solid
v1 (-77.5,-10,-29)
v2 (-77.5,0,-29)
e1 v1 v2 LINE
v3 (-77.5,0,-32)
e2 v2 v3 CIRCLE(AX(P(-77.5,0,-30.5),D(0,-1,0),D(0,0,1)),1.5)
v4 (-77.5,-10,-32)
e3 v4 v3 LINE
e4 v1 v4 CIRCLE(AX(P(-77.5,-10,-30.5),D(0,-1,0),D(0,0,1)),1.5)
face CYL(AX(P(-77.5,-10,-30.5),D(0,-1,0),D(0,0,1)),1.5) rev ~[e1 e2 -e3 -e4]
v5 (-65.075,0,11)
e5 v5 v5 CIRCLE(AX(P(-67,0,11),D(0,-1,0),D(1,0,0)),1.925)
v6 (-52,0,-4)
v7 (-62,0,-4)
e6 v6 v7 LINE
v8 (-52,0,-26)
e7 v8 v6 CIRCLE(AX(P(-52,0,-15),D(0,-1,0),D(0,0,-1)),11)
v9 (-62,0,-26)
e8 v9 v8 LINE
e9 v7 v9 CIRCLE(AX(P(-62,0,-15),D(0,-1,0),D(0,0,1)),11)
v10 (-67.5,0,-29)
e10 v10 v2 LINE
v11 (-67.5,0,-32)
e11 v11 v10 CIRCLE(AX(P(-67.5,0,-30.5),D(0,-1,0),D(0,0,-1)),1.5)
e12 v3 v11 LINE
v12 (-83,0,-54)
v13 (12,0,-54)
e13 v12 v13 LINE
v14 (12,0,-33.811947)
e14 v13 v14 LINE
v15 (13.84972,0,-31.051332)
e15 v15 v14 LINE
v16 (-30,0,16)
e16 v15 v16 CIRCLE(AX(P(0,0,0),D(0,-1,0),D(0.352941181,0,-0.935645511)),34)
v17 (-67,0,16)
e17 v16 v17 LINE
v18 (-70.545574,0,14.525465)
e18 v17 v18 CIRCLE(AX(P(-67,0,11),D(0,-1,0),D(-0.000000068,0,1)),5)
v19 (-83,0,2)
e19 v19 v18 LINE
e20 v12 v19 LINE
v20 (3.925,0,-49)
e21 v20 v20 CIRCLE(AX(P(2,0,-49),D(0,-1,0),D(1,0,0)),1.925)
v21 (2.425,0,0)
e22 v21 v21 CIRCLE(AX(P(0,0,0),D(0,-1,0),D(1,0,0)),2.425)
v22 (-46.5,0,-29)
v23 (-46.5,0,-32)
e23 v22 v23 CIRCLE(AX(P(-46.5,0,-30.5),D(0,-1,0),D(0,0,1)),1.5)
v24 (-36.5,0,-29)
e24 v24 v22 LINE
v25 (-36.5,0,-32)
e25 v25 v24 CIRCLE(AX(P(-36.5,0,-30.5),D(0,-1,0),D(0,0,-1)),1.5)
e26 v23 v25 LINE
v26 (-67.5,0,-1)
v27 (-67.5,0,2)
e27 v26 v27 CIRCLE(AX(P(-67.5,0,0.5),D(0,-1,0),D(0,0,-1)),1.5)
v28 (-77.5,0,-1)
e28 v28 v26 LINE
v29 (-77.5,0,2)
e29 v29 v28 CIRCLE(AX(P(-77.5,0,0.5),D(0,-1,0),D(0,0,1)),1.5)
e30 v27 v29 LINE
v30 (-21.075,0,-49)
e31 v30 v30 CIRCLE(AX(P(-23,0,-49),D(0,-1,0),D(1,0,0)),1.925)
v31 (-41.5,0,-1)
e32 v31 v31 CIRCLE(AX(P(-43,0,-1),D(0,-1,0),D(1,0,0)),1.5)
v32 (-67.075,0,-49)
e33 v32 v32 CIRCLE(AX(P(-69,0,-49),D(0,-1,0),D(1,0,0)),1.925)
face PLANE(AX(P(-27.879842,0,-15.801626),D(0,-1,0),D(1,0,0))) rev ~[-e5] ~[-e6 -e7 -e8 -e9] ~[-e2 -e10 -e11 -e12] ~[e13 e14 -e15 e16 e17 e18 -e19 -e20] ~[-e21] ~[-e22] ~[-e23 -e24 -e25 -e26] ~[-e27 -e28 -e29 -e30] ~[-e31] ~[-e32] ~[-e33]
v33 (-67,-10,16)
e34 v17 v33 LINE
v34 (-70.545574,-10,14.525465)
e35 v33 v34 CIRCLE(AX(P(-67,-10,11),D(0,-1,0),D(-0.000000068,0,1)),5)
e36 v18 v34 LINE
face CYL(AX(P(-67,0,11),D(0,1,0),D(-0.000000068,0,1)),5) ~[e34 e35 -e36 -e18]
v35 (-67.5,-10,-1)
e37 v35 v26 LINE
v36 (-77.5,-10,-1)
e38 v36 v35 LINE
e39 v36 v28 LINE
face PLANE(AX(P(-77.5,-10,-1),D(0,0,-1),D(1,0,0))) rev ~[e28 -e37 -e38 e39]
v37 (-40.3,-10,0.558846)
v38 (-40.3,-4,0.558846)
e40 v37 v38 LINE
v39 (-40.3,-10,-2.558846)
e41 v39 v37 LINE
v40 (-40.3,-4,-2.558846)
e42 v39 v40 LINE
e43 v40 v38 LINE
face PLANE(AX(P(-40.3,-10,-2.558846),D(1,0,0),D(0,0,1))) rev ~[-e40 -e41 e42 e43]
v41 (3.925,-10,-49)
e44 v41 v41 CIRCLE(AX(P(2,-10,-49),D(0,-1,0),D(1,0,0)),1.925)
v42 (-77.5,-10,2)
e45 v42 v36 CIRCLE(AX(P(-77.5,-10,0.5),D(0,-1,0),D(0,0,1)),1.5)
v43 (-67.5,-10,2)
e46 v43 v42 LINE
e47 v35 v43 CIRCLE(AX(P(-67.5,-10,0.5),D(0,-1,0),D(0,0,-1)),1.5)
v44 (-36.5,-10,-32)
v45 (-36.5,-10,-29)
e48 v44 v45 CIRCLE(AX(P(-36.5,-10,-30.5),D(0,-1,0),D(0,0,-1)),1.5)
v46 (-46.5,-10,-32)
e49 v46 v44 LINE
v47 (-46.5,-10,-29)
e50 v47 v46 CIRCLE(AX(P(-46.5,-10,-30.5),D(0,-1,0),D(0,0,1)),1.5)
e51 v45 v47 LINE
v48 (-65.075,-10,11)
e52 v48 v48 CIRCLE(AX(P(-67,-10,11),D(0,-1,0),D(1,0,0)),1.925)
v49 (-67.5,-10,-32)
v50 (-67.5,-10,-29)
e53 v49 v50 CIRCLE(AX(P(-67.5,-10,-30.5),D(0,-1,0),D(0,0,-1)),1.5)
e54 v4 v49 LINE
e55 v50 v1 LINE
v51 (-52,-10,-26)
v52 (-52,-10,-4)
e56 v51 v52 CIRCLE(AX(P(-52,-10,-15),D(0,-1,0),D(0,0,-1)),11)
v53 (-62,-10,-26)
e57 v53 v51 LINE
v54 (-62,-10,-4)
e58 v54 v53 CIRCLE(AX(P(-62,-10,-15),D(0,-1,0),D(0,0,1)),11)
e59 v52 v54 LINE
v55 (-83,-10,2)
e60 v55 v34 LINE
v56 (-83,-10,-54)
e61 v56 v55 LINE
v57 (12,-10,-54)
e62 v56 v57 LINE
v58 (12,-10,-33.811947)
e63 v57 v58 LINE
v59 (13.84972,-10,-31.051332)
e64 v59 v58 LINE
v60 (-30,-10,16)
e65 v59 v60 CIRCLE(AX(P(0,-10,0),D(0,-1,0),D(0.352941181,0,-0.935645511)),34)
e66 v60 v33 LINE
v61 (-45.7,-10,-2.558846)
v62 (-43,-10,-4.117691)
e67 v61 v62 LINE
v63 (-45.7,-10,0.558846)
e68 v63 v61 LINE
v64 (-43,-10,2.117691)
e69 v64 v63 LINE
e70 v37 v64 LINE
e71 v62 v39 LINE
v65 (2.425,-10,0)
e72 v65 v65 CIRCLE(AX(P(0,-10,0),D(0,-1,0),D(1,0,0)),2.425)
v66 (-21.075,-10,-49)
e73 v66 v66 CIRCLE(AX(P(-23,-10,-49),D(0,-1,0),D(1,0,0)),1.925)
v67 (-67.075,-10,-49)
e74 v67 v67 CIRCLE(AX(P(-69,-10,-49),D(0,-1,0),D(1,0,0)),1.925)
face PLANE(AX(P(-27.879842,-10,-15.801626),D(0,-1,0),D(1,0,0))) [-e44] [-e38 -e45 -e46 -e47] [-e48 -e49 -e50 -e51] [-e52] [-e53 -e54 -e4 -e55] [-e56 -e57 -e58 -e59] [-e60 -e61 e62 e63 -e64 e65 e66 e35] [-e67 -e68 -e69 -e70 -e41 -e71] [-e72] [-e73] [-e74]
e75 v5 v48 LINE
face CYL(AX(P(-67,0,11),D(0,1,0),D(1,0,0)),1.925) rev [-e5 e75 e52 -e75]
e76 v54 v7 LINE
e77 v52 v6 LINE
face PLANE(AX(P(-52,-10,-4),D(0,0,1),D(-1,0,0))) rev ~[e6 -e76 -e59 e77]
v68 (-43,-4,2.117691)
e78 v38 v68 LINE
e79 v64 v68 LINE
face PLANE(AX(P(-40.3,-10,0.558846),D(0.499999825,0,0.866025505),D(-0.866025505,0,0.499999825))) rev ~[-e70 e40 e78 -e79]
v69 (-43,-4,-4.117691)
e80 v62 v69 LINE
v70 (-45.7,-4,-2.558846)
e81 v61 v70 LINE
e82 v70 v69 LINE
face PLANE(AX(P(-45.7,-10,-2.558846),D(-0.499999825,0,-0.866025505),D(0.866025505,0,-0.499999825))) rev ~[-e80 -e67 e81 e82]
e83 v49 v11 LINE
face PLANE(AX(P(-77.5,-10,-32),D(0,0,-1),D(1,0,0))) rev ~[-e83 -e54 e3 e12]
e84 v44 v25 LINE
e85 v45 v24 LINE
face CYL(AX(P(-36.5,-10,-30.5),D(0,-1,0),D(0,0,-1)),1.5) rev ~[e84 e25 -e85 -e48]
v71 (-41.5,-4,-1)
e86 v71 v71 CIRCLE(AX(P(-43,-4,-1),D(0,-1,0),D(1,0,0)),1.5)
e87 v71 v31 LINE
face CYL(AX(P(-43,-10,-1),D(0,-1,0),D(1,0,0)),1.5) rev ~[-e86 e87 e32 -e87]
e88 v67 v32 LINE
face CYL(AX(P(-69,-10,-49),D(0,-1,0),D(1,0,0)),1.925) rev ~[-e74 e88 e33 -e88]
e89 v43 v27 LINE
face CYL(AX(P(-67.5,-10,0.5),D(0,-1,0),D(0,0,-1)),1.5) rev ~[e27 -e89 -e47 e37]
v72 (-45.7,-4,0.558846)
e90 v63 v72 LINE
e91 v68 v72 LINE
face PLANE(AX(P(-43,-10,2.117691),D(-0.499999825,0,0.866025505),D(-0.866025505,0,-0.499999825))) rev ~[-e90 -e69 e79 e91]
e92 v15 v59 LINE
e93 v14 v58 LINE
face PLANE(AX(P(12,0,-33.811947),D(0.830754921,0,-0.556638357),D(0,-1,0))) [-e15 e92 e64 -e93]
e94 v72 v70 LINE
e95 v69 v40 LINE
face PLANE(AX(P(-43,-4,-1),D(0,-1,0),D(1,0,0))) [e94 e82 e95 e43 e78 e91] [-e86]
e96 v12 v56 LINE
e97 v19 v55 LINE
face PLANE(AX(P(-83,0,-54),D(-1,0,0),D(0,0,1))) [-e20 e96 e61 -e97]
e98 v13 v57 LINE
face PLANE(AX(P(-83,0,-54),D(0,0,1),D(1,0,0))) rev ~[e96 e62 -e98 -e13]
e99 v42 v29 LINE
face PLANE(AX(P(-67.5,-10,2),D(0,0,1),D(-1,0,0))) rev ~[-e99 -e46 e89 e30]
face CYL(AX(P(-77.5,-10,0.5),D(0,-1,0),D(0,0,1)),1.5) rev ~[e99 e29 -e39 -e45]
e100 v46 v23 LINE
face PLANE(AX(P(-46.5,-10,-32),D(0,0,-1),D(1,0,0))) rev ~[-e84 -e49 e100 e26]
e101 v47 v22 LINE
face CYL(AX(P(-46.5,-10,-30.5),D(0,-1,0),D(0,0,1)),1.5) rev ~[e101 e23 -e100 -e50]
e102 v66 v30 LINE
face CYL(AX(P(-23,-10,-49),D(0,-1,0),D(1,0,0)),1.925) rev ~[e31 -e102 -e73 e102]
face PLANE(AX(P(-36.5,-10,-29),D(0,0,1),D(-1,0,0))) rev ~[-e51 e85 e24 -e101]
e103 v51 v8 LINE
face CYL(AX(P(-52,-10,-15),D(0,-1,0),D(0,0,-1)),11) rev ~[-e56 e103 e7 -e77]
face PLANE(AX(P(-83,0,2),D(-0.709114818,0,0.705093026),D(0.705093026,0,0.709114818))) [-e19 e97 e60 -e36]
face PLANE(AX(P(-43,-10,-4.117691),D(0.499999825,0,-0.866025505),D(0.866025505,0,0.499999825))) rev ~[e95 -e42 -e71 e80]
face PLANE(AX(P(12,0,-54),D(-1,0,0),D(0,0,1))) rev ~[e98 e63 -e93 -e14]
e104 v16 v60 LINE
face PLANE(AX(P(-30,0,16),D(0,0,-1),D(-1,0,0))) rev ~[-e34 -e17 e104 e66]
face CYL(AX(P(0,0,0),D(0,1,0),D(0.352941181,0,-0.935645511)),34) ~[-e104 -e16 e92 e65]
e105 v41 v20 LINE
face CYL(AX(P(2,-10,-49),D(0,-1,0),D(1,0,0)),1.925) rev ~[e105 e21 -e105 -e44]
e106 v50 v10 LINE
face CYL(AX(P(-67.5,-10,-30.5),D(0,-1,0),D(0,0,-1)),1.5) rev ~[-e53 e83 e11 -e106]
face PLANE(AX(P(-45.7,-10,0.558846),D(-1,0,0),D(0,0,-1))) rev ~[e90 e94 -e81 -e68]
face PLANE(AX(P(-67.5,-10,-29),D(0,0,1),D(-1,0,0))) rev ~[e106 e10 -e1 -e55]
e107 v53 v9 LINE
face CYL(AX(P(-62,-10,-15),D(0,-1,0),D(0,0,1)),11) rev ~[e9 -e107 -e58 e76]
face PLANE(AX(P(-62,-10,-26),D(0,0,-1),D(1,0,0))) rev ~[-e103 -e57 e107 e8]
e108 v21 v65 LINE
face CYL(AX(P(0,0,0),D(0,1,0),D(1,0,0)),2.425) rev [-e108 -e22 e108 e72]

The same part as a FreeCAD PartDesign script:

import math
import FreeCAD as App
import Part
import Sketcher

V = App.Vector
Q = App.Units.Quantity


def edges_at(feature, points):
    """Names of the edges that pass closest to the given points."""
    edges = feature.Shape.Edges
    near = lambda p: min(range(len(edges)), key=lambda i: edges[i].distToShape(Part.Vertex(*p))[0])
    return sorted({f"Edge{near(p) + 1}" for p in points})


def add_polygon(sketch, points):
    """Adds a closed chain of lines whose ends are joined by coincident constraints."""
    first, n = sketch.GeometryCount, len(points)
    for a, b in zip(points, points[1:] + points[:1]):
        sketch.addGeometry(Part.LineSegment(App.Vector(*a, 0), App.Vector(*b, 0)), False)
    for i in range(n):
        sketch.addConstraint(Sketcher.Constraint("Coincident", first + i, 2, first + (i + 1) % n, 1))

doc = App.newDocument("Part")
params = doc.addObject("Spreadsheet::Sheet", "Params")
for row, (alias, value) in enumerate([
    ("sketch1_radius", "34 mm"),
    ("sketch1_radius2", "5 mm"),
    ("sketch1_diameter", "4.85 mm"),
    ("sketch1_diameter2", "3.85 mm"),
    ("sketch1_width", "37 mm"),
    ("pad1_length", "10 mm"),
    ("sketch2_radius", "11 mm"),
    ("sketch2_radius2", "1.5 mm"),
    ("sketch2_width", "10 mm"),
    ("pocket1_length", "12 mm"),
    ("sketch3_diameter", "3.85 mm"),
    ("pocket2_length", "12 mm"),
    ("sketch4_diameter", "3 mm"),
    ("pocket3_length", "12 mm"),
    ("pocket4_length", "6 mm"),
    ("chamfer_size", "2 mm"),
], start=1):
    params.set(f"A{row}", alias)
    params.set(f"B{row}", "=" + value)
    params.setAlias(f"B{row}", alias)

body = doc.addObject("PartDesign::Body", "Body")

# Sketch on XZ plane
sketch1 = body.newObject("Sketcher::SketchObject", "Sketch")
sketch1.AttachmentSupport = (doc.getObject("XZ_Plane"), [""])
sketch1.MapMode = "FlatFace"
sketch1.addGeometry([
    Part.ArcOfCircle(Part.Circle(V(0, 0, 0), V(0, 0, 1), 34), math.radians(-69), math.radians(152)),  # 0
    Part.LineSegment(V(-30, 16, 0), V(-67, 16, 0)),  # 1
    Part.ArcOfCircle(Part.Circle(V(-67, 11, 0), V(0, 0, 1), 5), math.radians(90), math.radians(135)),  # 2
    Part.LineSegment(V(-70.5, 14.5, 0), V(-83, 2, 0)),  # 3
    Part.LineSegment(V(-83, 2, 0), V(-83, -54, 0)),  # 4
    Part.LineSegment(V(-83, -54, 0), V(12, -54, 0)),  # 5
    Part.LineSegment(V(12, -54, 0), V(12, -31.8, 0)),  # 6
    Part.Circle(V(0, 0, 0), V(0, 0, 1), 2.4),  # 7
    Part.Circle(V(-67, 11, 0), V(0, 0, 1), 1.9),  # 8
], False)
sketch1.addConstraint([
    Sketcher.Constraint("Coincident", 0, 2, 1, 1),
    Sketcher.Constraint("Tangent", 1, 2, 2, 1),
    Sketcher.Constraint("Tangent", 2, 2, 3, 1),
    Sketcher.Constraint("Coincident", 3, 2, 4, 1),
    Sketcher.Constraint("Coincident", 4, 2, 5, 1),
    Sketcher.Constraint("Coincident", 5, 2, 6, 1),
    Sketcher.Constraint("Coincident", 6, 2, 0, 1),
    Sketcher.Constraint("Horizontal", 1),
    Sketcher.Constraint("Vertical", 4),
    Sketcher.Constraint("Horizontal", 5),
    Sketcher.Constraint("Vertical", 6),
    Sketcher.Constraint("Coincident", 0, 3, -1, 1),
    Sketcher.Constraint("Coincident", 7, 3, -1, 1),
    Sketcher.Constraint("Coincident", 8, 3, 2, 3),
    Sketcher.Constraint("Radius", 0, 34.0),
    Sketcher.Constraint("Radius", 2, 5.0),
    Sketcher.Constraint("Diameter", 7, 4.85),
    Sketcher.Constraint("Diameter", 8, 3.85),
    Sketcher.Constraint("DistanceX", 1, 2, 1, 1, 37.0),
    Sketcher.Constraint("DistanceX", 5, 1, 5, 2, 95.0),
    Sketcher.Constraint("DistanceY", 4, 2, 4, 1, 56.0),
    Sketcher.Constraint("DistanceX", 2, 3, -1, 1, 67.0),
    Sketcher.Constraint("DistanceX", 3, 2, -1, 1, 83.0),
    Sketcher.Constraint("DistanceY", -1, 1, 3, 2, 2.0),
])
sketch1.setExpression("Constraints[14]", "Params.sketch1_radius")
sketch1.setExpression("Constraints[15]", "Params.sketch1_radius2")
sketch1.setExpression("Constraints[16]", "Params.sketch1_diameter")
sketch1.setExpression("Constraints[17]", "Params.sketch1_diameter2")
sketch1.setExpression("Constraints[18]", "Params.sketch1_width")
pad1 = body.newObject("PartDesign::Pad", "Pad")
pad1.Profile = sketch1
pad1.setExpression("Length", "Params.pad1_length")

# Sketch on XZ plane
sketch2 = body.newObject("Sketcher::SketchObject", "Sketch001")
sketch2.AttachmentSupport = (doc.getObject("XZ_Plane"), [""])
sketch2.MapMode = "FlatFace"
sketch2.AttachmentOffset = App.Placement(V(0, 0, 10), App.Rotation())
sketch2.addGeometry([
    Part.ArcOfCircle(Part.Circle(V(-62, -15, 0), V(0, 0, 1), 11), math.radians(90), math.radians(270)),  # 0
    Part.LineSegment(V(-62, -26, 0), V(-52, -26, 0)),  # 1
    Part.ArcOfCircle(Part.Circle(V(-52, -15, 0), V(0, 0, 1), 11), math.radians(-90), math.radians(90)),  # 2
    Part.LineSegment(V(-52, -4, 0), V(-62, -4, 0)),  # 3
    Part.ArcOfCircle(Part.Circle(V(-77.5, 0.5, 0), V(0, 0, 1), 1.5), math.radians(90), math.radians(270)),  # 4
    Part.LineSegment(V(-77.5, -1, 0), V(-67.5, -1, 0)),  # 5
    Part.ArcOfCircle(Part.Circle(V(-67.5, 0.5, 0), V(0, 0, 1), 1.5), math.radians(-90), math.radians(90)),  # 6
    Part.LineSegment(V(-67.5, 2, 0), V(-77.5, 2, 0)),  # 7
    Part.ArcOfCircle(Part.Circle(V(-77.5, -30.5, 0), V(0, 0, 1), 1.5), math.radians(90), math.radians(270)),  # 8
    Part.LineSegment(V(-77.5, -32, 0), V(-67.5, -32, 0)),  # 9
    Part.ArcOfCircle(Part.Circle(V(-67.5, -30.5, 0), V(0, 0, 1), 1.5), math.radians(-90), math.radians(90)),  # 10
    Part.LineSegment(V(-67.5, -29, 0), V(-77.5, -29, 0)),  # 11
    Part.ArcOfCircle(Part.Circle(V(-46.5, -30.5, 0), V(0, 0, 1), 1.5), math.radians(90), math.radians(270)),  # 12
    Part.LineSegment(V(-46.5, -32, 0), V(-36.5, -32, 0)),  # 13
    Part.ArcOfCircle(Part.Circle(V(-36.5, -30.5, 0), V(0, 0, 1), 1.5), math.radians(-90), math.radians(90)),  # 14
    Part.LineSegment(V(-36.5, -29, 0), V(-46.5, -29, 0)),  # 15
], False)
sketch2.addConstraint([
    Sketcher.Constraint("Tangent", 0, 2, 1, 1),
    Sketcher.Constraint("Tangent", 1, 2, 2, 1),
    Sketcher.Constraint("Tangent", 2, 2, 3, 1),
    Sketcher.Constraint("Tangent", 3, 2, 0, 1),
    Sketcher.Constraint("Tangent", 4, 2, 5, 1),
    Sketcher.Constraint("Tangent", 5, 2, 6, 1),
    Sketcher.Constraint("Tangent", 6, 2, 7, 1),
    Sketcher.Constraint("Tangent", 7, 2, 4, 1),
    Sketcher.Constraint("Tangent", 8, 2, 9, 1),
    Sketcher.Constraint("Tangent", 9, 2, 10, 1),
    Sketcher.Constraint("Tangent", 10, 2, 11, 1),
    Sketcher.Constraint("Tangent", 11, 2, 8, 1),
    Sketcher.Constraint("Tangent", 12, 2, 13, 1),
    Sketcher.Constraint("Tangent", 13, 2, 14, 1),
    Sketcher.Constraint("Tangent", 14, 2, 15, 1),
    Sketcher.Constraint("Tangent", 15, 2, 12, 1),
    Sketcher.Constraint("Horizontal", 1),
    Sketcher.Constraint("Horizontal", 3),
    Sketcher.Constraint("Horizontal", 5),
    Sketcher.Constraint("Horizontal", 7),
    Sketcher.Constraint("Horizontal", 9),
    Sketcher.Constraint("Horizontal", 11),
    Sketcher.Constraint("Horizontal", 13),
    Sketcher.Constraint("Horizontal", 15),
    Sketcher.Constraint("Equal", 6, 8),
    Sketcher.Constraint("Equal", 10, 12),
    Sketcher.Constraint("Horizontal", 10, 3, 12, 3),
    Sketcher.Constraint("Vertical", 4, 3, 8, 3),
    Sketcher.Constraint("Vertical", 6, 3, 10, 3),
    Sketcher.Constraint("Equal", 3, 5),
    Sketcher.Constraint("Equal", 11, 13),
    Sketcher.Constraint("Radius", 0, 11.0),
    Sketcher.Constraint("Radius", 4, 1.5),
    Sketcher.Constraint("DistanceX", 1, 1, 1, 2, 10.0),
    Sketcher.Constraint("DistanceX", 0, 3, -1, 1, 62.0),
    Sketcher.Constraint("DistanceY", 0, 3, -1, 1, 15.0),
    Sketcher.Constraint("DistanceY", 4, 2, -1, 1, 1.0),
    Sketcher.Constraint("DistanceY", 8, 2, -1, 1, 32.0),
    Sketcher.Constraint("DistanceX", 10, 3, 12, 3, 21.0),
    Sketcher.Constraint("DistanceX", 4, 3, -1, 1, 77.5),
])
sketch2.setExpression("Constraints[31]", "Params.sketch2_radius")
sketch2.setExpression("Constraints[32]", "Params.sketch2_radius2")
sketch2.setExpression("Constraints[33]", "Params.sketch2_width")
pocket1 = body.newObject("PartDesign::Pocket", "Pocket")
pocket1.Profile = sketch2
pocket1.setExpression("Length", "Params.pocket1_length")

# Sketch on XZ plane
sketch3 = body.newObject("Sketcher::SketchObject", "Sketch002")
sketch3.AttachmentSupport = (doc.getObject("XZ_Plane"), [""])
sketch3.MapMode = "FlatFace"
sketch3.AttachmentOffset = App.Placement(V(0, 0, 10), App.Rotation())
sketch3.addGeometry([
    Part.Circle(V(-69, -49, 0), V(0, 0, 1), 1.9),
    Part.Circle(V(-23, -49, 0), V(0, 0, 1), 1.9),
    Part.Circle(V(2, -49, 0), V(0, 0, 1), 1.9),
], False)
sketch3.addConstraint([
    Sketcher.Constraint("Equal", 0, 1),
    Sketcher.Constraint("Equal", 1, 2),
    Sketcher.Constraint("Horizontal", 0, 3, 1, 3),
    Sketcher.Constraint("Horizontal", 1, 3, 2, 3),
    Sketcher.Constraint("Diameter", 0, 3.85),
    Sketcher.Constraint("DistanceX", 0, 3, -1, 1, 69.0),
    Sketcher.Constraint("DistanceY", 0, 3, -1, 1, 49.0),
    Sketcher.Constraint("DistanceX", 1, 3, -1, 1, 23.0),
    Sketcher.Constraint("DistanceX", -1, 1, 2, 3, 2.0),
])
sketch3.setExpression("Constraints[4]", "Params.sketch3_diameter")
pocket2 = body.newObject("PartDesign::Pocket", "Pocket001")
pocket2.Profile = sketch3
pocket2.setExpression("Length", "Params.pocket2_length")

# Sketch on XZ plane
sketch4 = body.newObject("Sketcher::SketchObject", "Sketch003")
sketch4.AttachmentSupport = (doc.getObject("XZ_Plane"), [""])
sketch4.MapMode = "FlatFace"
sketch4.AttachmentOffset = App.Placement(V(0, 0, 10), App.Rotation())
sketch4.addGeometry(Part.Circle(V(-43, -1, 0), V(0, 0, 1), 1.5), False)
sketch4.addConstraint([
    Sketcher.Constraint("Diameter", 0, 3.0),
    Sketcher.Constraint("DistanceX", 0, 3, -1, 1, 43.0),
    Sketcher.Constraint("DistanceY", 0, 3, -1, 1, 1.0),
])
sketch4.setExpression("Constraints[0]", "Params.sketch4_diameter")
pocket3 = body.newObject("PartDesign::Pocket", "Pocket002")
pocket3.Profile = sketch4
pocket3.setExpression("Length", "Params.pocket3_length")

# Sketch on XZ plane
sketch5 = body.newObject("Sketcher::SketchObject", "Sketch004")
sketch5.AttachmentSupport = (doc.getObject("XZ_Plane"), [""])
sketch5.MapMode = "FlatFace"
sketch5.AttachmentOffset = App.Placement(V(0, 0, 10), App.Rotation())
add_polygon(sketch5, [(-43, -4.1), (-40.3, -2.6), (-40.3, 0.6), (-43, 2.1), (-45.7, 0.6), (-45.7, -2.6)])  # lines 0-5
sketch5.addConstraint([
    Sketcher.Constraint("Vertical", 1),
    Sketcher.Constraint("Vertical", 4),
    Sketcher.Constraint("Parallel", 0, 3),
    Sketcher.Constraint("Parallel", 2, 5),
    Sketcher.Constraint("Horizontal", 1, 2, 3, 2),
    Sketcher.Constraint("Horizontal", 0, 2, 4, 2),
    Sketcher.Constraint("Vertical", 2, 2, 5, 2),
    Sketcher.Constraint("Angle", 0, Q("29.999988 deg")),
    Sketcher.Constraint("DistanceX", 2, 2, -1, 1, 43.0),
    Sketcher.Constraint("DistanceX", 0, 2, -1, 1, 40.3),
    Sketcher.Constraint("DistanceY", 1, 1, 1, 2, 3.117692),
    Sketcher.Constraint("DistanceY", -1, 1, 2, 2, 2.117691),
])
pocket4 = body.newObject("PartDesign::Pocket", "Pocket003")
pocket4.Profile = sketch5
pocket4.setExpression("Length", "Params.pocket4_length")
doc.recompute()

chamfer = body.newObject("PartDesign::Chamfer", "Chamfer")
chamfer.Base = (pocket4, edges_at(pocket4, [(12, -5, -31.812)]))
chamfer.setExpression("Size", "Params.chamfer_size")

doc.recompute()
